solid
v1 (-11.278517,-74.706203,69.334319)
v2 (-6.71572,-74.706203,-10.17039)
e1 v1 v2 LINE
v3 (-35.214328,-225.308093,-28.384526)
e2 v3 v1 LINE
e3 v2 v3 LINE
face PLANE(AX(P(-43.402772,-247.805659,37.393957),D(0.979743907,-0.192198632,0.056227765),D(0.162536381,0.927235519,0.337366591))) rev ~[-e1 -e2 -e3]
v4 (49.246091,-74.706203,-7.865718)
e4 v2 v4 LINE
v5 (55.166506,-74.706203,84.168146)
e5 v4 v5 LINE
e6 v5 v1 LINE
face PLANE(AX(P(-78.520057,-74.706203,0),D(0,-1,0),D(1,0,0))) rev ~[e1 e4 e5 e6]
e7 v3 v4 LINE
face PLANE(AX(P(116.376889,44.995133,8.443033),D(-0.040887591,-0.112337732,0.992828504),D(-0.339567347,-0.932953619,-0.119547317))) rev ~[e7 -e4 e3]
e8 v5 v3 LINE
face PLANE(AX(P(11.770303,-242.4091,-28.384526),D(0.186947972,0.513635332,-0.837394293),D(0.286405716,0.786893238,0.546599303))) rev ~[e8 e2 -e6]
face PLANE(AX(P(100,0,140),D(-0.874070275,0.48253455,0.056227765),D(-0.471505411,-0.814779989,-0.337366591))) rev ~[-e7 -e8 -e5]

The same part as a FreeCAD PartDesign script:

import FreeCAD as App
import Part
import Sketcher

V = App.Vector

doc = App.newDocument("Part")
body = doc.addObject("PartDesign::Body", "Body")

sketch1 = doc.addObject("Sketcher::SketchObject", "Sketch")
body.addObject(sketch1)
sketch1.AttachmentSupport = (doc.XZ_Plane, [""])
sketch1.MapMode = "FlatFace"
sketch1.addGeometry([
    Part.LineSegment(V(0, 140, 0), V(0, 0, 0)),
    Part.LineSegment(V(0, 0, 0), V(100, 0, 0)),
    Part.LineSegment(V(100, 0, 0), V(100, 140, 0)),
    Part.LineSegment(V(100, 140, 0), V(0, 140, 0)),
], False)
sketch1.addConstraint([
    Sketcher.Constraint("Coincident", 0, 2, 1, 1),
    Sketcher.Constraint("Coincident", 1, 2, 2, 1),
    Sketcher.Constraint("Coincident", 2, 2, 3, 1),
    Sketcher.Constraint("Coincident", 3, 2, 0, 1),
    Sketcher.Constraint("Vertical", 0),
    Sketcher.Constraint("Horizontal", 1),
    Sketcher.Constraint("Vertical", 2),
    Sketcher.Constraint("Horizontal", 3),
    Sketcher.Constraint("Coincident", 0, 2, -1, 1),
    Sketcher.Constraint("DistanceX", 1, 1, 1, 2, 100.0),
    Sketcher.Constraint("DistanceY", 0, 2, 0, 1, 140.0),
])
pad1 = doc.addObject("PartDesign::Pad", "Pad")
body.addObject(pad1)
pad1.Profile = sketch1
pad1.Length = 300

sketch2 = doc.addObject("Sketcher::SketchObject", "Sketch001")
body.addObject(sketch2)
sketch2.AttachmentSupport = (doc.XY_Plane, [""])
sketch2.MapMode = "FlatFace"
sketch2.AttachmentOffset = App.Placement(V(0, 0, 140), App.Rotation())
sketch2.addGeometry([
    Part.LineSegment(V(50, -300, 0), V(0, 0, 0)),
    Part.LineSegment(V(0, 0, 0), V(-43.489616, -321.466982, 0)),
    Part.LineSegment(V(-43.489616, -321.466982, 0), V(163.458076, -380.987346, 0)),
    Part.LineSegment(V(163.458076, -380.987346, 0), V(100, 0, 0)),
    Part.LineSegment(V(100, 0, 0), V(50, -300, 0)),
], False)
sketch2.addConstraint([
    Sketcher.Constraint("Coincident", 0, 2, 1, 1),
    Sketcher.Constraint("Coincident", 1, 2, 2, 1),
    Sketcher.Constraint("Coincident", 2, 2, 3, 1),
    Sketcher.Constraint("Coincident", 3, 2, 4, 1),
    Sketcher.Constraint("Coincident", 4, 2, 0, 1),
    Sketcher.Constraint("Coincident", 0, 2, -1, 1),
    Sketcher.Constraint("PointOnObject", 3, 2, -1),
    Sketcher.Constraint("Equal", 0, 4),
    Sketcher.Constraint("DistanceX", -1, 1, 3, 2, 100.0),
    Sketcher.Constraint("DistanceY", 4, 2, -1, 1, 300.0),
    Sketcher.Constraint("Distance", 3, 386.236049),
    Sketcher.Constraint("DistanceX", 1, 2, 2, 2, 206.947692),
    Sketcher.Constraint("Distance", 1, 324.395388),
    Sketcher.Constraint("Distance", 2, 215.336994),
])
pocket1 = doc.addObject("PartDesign::Pocket", "Pocket")
body.addObject(pocket1)
pocket1.Profile = sketch2
pocket1.Type = "ThroughAll"

sketch3 = doc.addObject("Sketcher::SketchObject", "Sketch002")
body.addObject(sketch3)
sketch3.AttachmentSupport = (doc.YZ_Plane, [""])
sketch3.MapMode = "FlatFace"
sketch3.AttachmentOffset = App.Placement(V(0, 0, 100), App.Rotation())
sketch3.addGeometry([
    Part.LineSegment(V(-300, 70, 0), V(0, 140, 0)),
    Part.LineSegment(V(0, 140, 0), V(-333.828896, 174.132692, 0)),
    Part.LineSegment(V(-333.828896, 174.132692, 0), V(-333.828896, -23.498725, 0)),
    Part.LineSegment(V(-333.828896, -23.498725, 0), V(0, 0, 0)),
    Part.LineSegment(V(0, 0, 0), V(-300, 70, 0)),
], False)
sketch3.addConstraint([
    Sketcher.Constraint("Coincident", 0, 2, 1, 1),
    Sketcher.Constraint("Coincident", 1, 2, 2, 1),
    Sketcher.Constraint("Coincident", 2, 2, 3, 1),
    Sketcher.Constraint("Coincident", 3, 2, 4, 1),
    Sketcher.Constraint("Coincident", 4, 2, 0, 1),
    Sketcher.Constraint("Vertical", 2),
    Sketcher.Constraint("Coincident", 3, 2, -1, 1),
    Sketcher.Constraint("PointOnObject", 0, 2, -2),
    Sketcher.Constraint("Equal", 0, 4),
    Sketcher.Constraint("DistanceY", -1, 1, 0, 2, 140.0),
    Sketcher.Constraint("DistanceX", 4, 2, -1, 1, 300.0),
    Sketcher.Constraint("Distance", 3, 334.65493),
    Sketcher.Constraint("DistanceY", 2, 2, 2, 1, 197.631417),
    Sketcher.Constraint("DistanceY", -1, 1, 1, 2, 174.132692),
])
pocket2 = doc.addObject("PartDesign::Pocket", "Pocket001")
body.addObject(pocket2)
pocket2.Profile = sketch3
pocket2.Type = "ThroughAll"
body2 = doc.addObject("PartDesign::Body", "Body001")
doc.recompute()

body.Placement = App.Placement(V(6.030738, 34.202014, 0), App.Rotation(V(0, 0, -1), 20))
boolean = doc.addObject("PartDesign::Boolean", "Boolean")
body2.addObject(boolean)
boolean.Type = "Fuse"
boolean.addObjects([body])
body3 = doc.addObject("PartDesign::Body", "Body002")
doc.recompute()

body2.Placement = App.Placement(V(17.082351, 46.933374, -3.254745), App.Rotation(V(0.939692621, -0.342020143, 0), 20))
boolean2 = doc.addObject("PartDesign::Boolean", "Boolean001")
body3.addObject(boolean2)
boolean2.Type = "Fuse"
boolean2.addObjects([body2])

sketch4 = doc.addObject("Sketcher::SketchObject", "Sketch003")
body3.addObject(sketch4)
sketch4.AttachmentSupport = (doc.getObject("XY_Plane002"), [""])
sketch4.MapMode = "FlatFace"
sketch4.addGeometry([
    Part.LineSegment(V(-78.520057, 124.169012, 0), V(-78.520057, -74.706203, 0)),
    Part.LineSegment(V(-78.520057, -74.706203, 0), V(133.720629, -74.706203, 0)),
    Part.LineSegment(V(133.720629, -74.706203, 0), V(133.720629, 124.169012, 0)),
    Part.LineSegment(V(133.720629, 124.169012, 0), V(-78.520057, 124.169012, 0)),
], False)
sketch4.addConstraint([
    Sketcher.Constraint("Coincident", 0, 2, 1, 1),
    Sketcher.Constraint("Coincident", 1, 2, 2, 1),
    Sketcher.Constraint("Coincident", 2, 2, 3, 1),
    Sketcher.Constraint("Coincident", 3, 2, 0, 1),
    Sketcher.Constraint("Vertical", 0),
    Sketcher.Constraint("Horizontal", 1),
    Sketcher.Constraint("Vertical", 2),
    Sketcher.Constraint("Horizontal", 3),
    Sketcher.Constraint("DistanceX", 1, 1, 1, 2, 212.240686),
    Sketcher.Constraint("DistanceY", 0, 2, 0, 1, 198.875215),
    Sketcher.Constraint("DistanceX", -1, 1, 1, 2, 133.720629),
    Sketcher.Constraint("DistanceY", 0, 2, -1, 1, 74.706203),
])
pocket3 = doc.addObject("PartDesign::Pocket", "Pocket002")
body3.addObject(pocket3)
pocket3.Profile = sketch4
pocket3.Length = 284
pocket3.Midplane = True

doc.recompute()
